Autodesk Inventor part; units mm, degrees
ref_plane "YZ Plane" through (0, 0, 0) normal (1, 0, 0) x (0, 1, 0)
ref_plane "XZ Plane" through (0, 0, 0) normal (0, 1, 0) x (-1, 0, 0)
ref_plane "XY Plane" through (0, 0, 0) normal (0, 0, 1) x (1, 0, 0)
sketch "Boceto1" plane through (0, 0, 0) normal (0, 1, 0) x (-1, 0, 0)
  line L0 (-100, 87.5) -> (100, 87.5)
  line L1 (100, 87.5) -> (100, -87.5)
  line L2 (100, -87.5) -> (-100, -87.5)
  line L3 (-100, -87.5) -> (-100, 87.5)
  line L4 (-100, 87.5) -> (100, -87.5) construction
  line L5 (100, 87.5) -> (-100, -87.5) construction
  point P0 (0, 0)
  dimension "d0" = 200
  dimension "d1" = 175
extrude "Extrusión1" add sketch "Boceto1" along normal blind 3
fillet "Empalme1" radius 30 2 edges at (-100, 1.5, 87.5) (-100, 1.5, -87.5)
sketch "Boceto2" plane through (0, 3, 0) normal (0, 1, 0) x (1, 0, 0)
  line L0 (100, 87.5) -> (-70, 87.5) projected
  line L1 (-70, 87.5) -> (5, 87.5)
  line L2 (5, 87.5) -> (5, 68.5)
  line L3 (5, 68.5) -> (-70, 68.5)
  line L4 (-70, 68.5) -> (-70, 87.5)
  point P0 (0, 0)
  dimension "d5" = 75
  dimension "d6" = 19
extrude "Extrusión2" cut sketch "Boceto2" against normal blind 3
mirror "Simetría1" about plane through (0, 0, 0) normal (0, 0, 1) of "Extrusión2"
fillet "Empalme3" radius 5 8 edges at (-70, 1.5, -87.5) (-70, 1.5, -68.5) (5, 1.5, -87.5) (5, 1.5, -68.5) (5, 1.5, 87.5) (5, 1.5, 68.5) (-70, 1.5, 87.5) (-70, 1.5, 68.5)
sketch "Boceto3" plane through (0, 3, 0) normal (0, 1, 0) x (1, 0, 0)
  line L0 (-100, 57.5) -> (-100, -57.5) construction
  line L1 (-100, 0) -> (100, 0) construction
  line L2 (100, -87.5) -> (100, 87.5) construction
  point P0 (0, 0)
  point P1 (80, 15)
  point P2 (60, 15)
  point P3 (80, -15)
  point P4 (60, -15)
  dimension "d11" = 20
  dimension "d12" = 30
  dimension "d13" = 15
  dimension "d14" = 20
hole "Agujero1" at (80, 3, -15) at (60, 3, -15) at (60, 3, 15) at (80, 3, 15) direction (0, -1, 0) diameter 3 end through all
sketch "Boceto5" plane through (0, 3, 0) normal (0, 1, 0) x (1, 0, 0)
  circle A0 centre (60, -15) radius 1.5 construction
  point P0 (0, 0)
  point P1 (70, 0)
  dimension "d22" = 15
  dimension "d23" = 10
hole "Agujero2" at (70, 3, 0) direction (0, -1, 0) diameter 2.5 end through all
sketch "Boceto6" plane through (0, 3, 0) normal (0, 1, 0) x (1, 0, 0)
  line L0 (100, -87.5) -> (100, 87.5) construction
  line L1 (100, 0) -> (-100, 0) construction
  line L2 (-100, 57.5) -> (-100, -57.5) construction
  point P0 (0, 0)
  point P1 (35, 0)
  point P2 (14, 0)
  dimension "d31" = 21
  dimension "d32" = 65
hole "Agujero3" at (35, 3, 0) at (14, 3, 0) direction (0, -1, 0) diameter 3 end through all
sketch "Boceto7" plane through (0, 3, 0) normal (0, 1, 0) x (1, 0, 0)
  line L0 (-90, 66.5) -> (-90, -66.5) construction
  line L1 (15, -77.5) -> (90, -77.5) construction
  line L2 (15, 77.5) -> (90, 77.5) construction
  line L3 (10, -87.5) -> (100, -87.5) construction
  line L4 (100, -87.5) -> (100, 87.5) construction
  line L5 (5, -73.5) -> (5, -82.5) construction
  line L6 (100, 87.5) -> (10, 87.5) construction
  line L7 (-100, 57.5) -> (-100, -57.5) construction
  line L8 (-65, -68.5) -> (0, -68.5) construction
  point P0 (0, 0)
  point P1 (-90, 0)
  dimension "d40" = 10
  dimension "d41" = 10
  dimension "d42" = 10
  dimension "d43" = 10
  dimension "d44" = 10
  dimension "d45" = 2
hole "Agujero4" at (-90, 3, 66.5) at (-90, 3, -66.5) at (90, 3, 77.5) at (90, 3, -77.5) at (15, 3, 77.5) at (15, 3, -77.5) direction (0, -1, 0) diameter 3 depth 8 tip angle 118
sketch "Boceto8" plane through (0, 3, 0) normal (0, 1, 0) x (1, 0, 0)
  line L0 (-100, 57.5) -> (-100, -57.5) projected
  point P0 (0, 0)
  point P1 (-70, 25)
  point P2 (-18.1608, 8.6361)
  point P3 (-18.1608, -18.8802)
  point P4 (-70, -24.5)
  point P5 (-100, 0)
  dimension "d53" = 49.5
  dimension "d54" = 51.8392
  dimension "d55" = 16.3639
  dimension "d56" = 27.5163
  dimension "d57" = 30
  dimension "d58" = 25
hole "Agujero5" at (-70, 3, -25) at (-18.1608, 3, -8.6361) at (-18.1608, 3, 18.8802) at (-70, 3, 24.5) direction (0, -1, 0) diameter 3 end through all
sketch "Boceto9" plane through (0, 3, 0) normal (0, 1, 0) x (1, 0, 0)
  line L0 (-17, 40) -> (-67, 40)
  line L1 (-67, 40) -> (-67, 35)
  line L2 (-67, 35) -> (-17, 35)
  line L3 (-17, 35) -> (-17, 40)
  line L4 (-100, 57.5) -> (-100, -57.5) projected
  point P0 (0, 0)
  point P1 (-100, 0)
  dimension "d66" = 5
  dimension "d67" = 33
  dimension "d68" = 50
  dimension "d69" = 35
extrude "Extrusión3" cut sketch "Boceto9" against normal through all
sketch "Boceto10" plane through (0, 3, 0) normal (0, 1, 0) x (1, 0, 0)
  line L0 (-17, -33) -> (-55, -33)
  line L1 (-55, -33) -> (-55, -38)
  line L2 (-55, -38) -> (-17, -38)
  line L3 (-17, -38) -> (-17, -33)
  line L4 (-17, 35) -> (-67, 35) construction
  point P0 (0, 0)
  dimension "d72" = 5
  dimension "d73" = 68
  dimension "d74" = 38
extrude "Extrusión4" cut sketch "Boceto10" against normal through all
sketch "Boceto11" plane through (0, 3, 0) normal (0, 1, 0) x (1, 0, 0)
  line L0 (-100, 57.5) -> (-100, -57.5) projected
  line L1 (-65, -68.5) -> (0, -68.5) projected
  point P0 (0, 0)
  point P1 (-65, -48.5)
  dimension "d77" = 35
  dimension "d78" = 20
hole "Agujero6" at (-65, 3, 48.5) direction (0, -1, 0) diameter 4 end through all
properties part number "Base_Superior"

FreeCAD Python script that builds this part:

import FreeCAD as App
import Part
import Sketcher


def edges_at(feature, points):
    """Names of the edges that pass closest to the given points."""
    edges = feature.Shape.Edges
    near = lambda p: min(range(len(edges)), key=lambda i: edges[i].distToShape(Part.Vertex(*p))[0])
    return sorted({f"Edge{near(p) + 1}" for p in points})


def add_polygon(sketch, points):
    """Adds a closed chain of lines whose ends are joined by coincident constraints."""
    first, n = sketch.GeometryCount, len(points)
    for a, b in zip(points, points[1:] + points[:1]):
        sketch.addGeometry(Part.LineSegment(App.Vector(*a, 0), App.Vector(*b, 0)), False)
    for i in range(n):
        sketch.addConstraint(Sketcher.Constraint("Coincident", first + i, 2, first + (i + 1) % n, 1))

doc = App.newDocument("Part")
body = doc.addObject("PartDesign::Body", "Body")

sketch1 = body.newObject("Sketcher::SketchObject", "Sketch")
sketch1.AttachmentSupport = (doc.getObject("XZ_Plane"), [""])
sketch1.MapMode = "FlatFace"
add_polygon(sketch1, [(-100, 88), (100, 88), (100, -88), (-100, -88)])
sketch1.addConstraint([
    Sketcher.Constraint("Horizontal", 0),
    Sketcher.Constraint("Vertical", 1),
    Sketcher.Constraint("Horizontal", 2),
    Sketcher.Constraint("Vertical", 3),
    Sketcher.Constraint("Symmetric", 0, 2, 2, 2, -1, 1),
    Sketcher.Constraint("DistanceX", 0, 1, 0, 2, 200.0),
    Sketcher.Constraint("DistanceY", 1, 2, 1, 1, 175.0),
])
pad1 = body.newObject("PartDesign::Pad", "Pad")
pad1.Profile = sketch1
pad1.Length = 3
pad1.Reversed = True
doc.recompute()

fillet = body.newObject("PartDesign::Fillet", "Fillet")
fillet.Base = (pad1, edges_at(pad1, [(-100, 1.5, 87.5), (-100, 1.5, -87.5)]))
fillet.Radius = 30

sketch2 = body.newObject("Sketcher::SketchObject", "Sketch001")
sketch2.AttachmentSupport = (doc.getObject("XZ_Plane"), [""])
sketch2.MapMode = "FlatFace"
sketch2.AttachmentOffset = App.Placement(App.Vector(0, 0, -3), App.Rotation())
add_polygon(sketch2, [(5, -68), (5, -88), (-70, -88), (-70, -68)])
sketch2.addConstraint([
    Sketcher.Constraint("Vertical", 0),
    Sketcher.Constraint("Horizontal", 1),
    Sketcher.Constraint("Vertical", 2),
    Sketcher.Constraint("Horizontal", 3),
    Sketcher.Constraint("DistanceX", 1, 2, 1, 1, 75.0),
    Sketcher.Constraint("DistanceY", 0, 2, 0, 1, 19.0),
    Sketcher.Constraint("DistanceX", -1, 1, 0, 2, 5.0),
    Sketcher.Constraint("DistanceY", 0, 2, -1, 1, 87.5),
])
pocket1 = body.newObject("PartDesign::Pocket", "Pocket")
pocket1.Profile = sketch2
pocket1.Length = 3
pocket1.Reversed = True
doc.recompute()

mirrored = body.newObject("PartDesign::Mirrored", "Mirrored")
mirrored.Originals = [pocket1]
mirrored.MirrorPlane = (doc.getObject("XY_Plane"), [""])
body.Tip = mirrored
doc.recompute()

fillet2 = body.newObject("PartDesign::Fillet", "Fillet001")
fillet2.Base = (mirrored, edges_at(mirrored, [
    (-70, 1.5, -87.5),
    (-70, 1.5, -68.5),
    (5, 1.5, -87.5),
    (5, 1.5, -68.5),
    (5, 1.5, 87.5),
    (5, 1.5, 68.5),
    (-70, 1.5, 87.5),
    (-70, 1.5, 68.5),
]))
fillet2.Radius = 5

sketch3 = body.newObject("Sketcher::SketchObject", "Sketch002")
sketch3.AttachmentSupport = (doc.getObject("XZ_Plane"), [""])
sketch3.MapMode = "FlatFace"
sketch3.AttachmentOffset = App.Placement(App.Vector(0, 0, -3), App.Rotation())
sketch3.addGeometry([
    Part.Circle(App.Vector(80, -15, 0), App.Vector(0, 0, 1), 1.5),
    Part.Circle(App.Vector(60, -15, 0), App.Vector(0, 0, 1), 1.5),
    Part.Circle(App.Vector(60, 15, 0), App.Vector(0, 0, 1), 1.5),
    Part.Circle(App.Vector(80, 15, 0), App.Vector(0, 0, 1), 1.5),
], False)
sketch3.addConstraint([
    Sketcher.Constraint("Equal", 0, 1),
    Sketcher.Constraint("Equal", 1, 2),
    Sketcher.Constraint("Equal", 2, 3),
    Sketcher.Constraint("Symmetric", 1, 3, 2, 3, -1),
    Sketcher.Constraint("Symmetric", 0, 3, 3, 3, -1),
    Sketcher.Constraint("Horizontal", 0, 3, 1, 3),
    Sketcher.Constraint("Diameter", 0, 3.0),
    Sketcher.Constraint("DistanceX", -1, 1, 0, 3, 80.0),
    Sketcher.Constraint("DistanceY", 0, 3, -1, 1, 15.0),
    Sketcher.Constraint("DistanceX", -1, 1, 1, 3, 60.0),
])
doc.recompute()
hole = body.newObject("PartDesign::Hole", "Hole")
hole.Profile = sketch3
hole.ThreadType = "None"
hole.Diameter = 3
hole.DepthType = "ThroughAll"
hole.Reversed = True

sketch4 = body.newObject("Sketcher::SketchObject", "Sketch003")
sketch4.AttachmentSupport = (doc.getObject("XZ_Plane"), [""])
sketch4.MapMode = "FlatFace"
sketch4.AttachmentOffset = App.Placement(App.Vector(0, 0, -3), App.Rotation())
sketch4.addGeometry(Part.Circle(App.Vector(70, 0, 0), App.Vector(0, 0, 1), 1.2), False)
sketch4.addConstraint([
    Sketcher.Constraint("PointOnObject", 0, 3, -1),
    Sketcher.Constraint("Diameter", 0, 2.5),
    Sketcher.Constraint("DistanceX", -1, 1, 0, 3, 70.0),
])
doc.recompute()
hole2 = body.newObject("PartDesign::Hole", "Hole001")
hole2.Profile = sketch4
hole2.ThreadType = "None"
hole2.Diameter = 2.5
hole2.DepthType = "ThroughAll"
hole2.Reversed = True

sketch5 = body.newObject("Sketcher::SketchObject", "Sketch004")
sketch5.AttachmentSupport = (doc.getObject("XZ_Plane"), [""])
sketch5.MapMode = "FlatFace"
sketch5.AttachmentOffset = App.Placement(App.Vector(0, 0, -3), App.Rotation())
sketch5.addGeometry([
    Part.Circle(App.Vector(35, 0, 0), App.Vector(0, 0, 1), 1.5),
    Part.Circle(App.Vector(14, 0, 0), App.Vector(0, 0, 1), 1.5),
], False)
sketch5.addConstraint([
    Sketcher.Constraint("Equal", 0, 1),
    Sketcher.Constraint("PointOnObject", 0, 3, -1),
    Sketcher.Constraint("PointOnObject", 1, 3, -1),
    Sketcher.Constraint("Diameter", 0, 3.0),
    Sketcher.Constraint("DistanceX", -1, 1, 0, 3, 35.0),
    Sketcher.Constraint("DistanceX", -1, 1, 1, 3, 14.0),
])
doc.recompute()
hole3 = body.newObject("PartDesign::Hole", "Hole002")
hole3.Profile = sketch5
hole3.ThreadType = "None"
hole3.Diameter = 3
hole3.DepthType = "ThroughAll"
hole3.Reversed = True

sketch6 = body.newObject("Sketcher::SketchObject", "Sketch005")
sketch6.AttachmentSupport = (doc.getObject("XZ_Plane"), [""])
sketch6.MapMode = "FlatFace"
sketch6.AttachmentOffset = App.Placement(App.Vector(0, 0, -3), App.Rotation())
sketch6.addGeometry([
    Part.Circle(App.Vector(-90, 66.5, 0), App.Vector(0, 0, 1), 1.5),
    Part.Circle(App.Vector(-90, -66.5, 0), App.Vector(0, 0, 1), 1.5),
    Part.Circle(App.Vector(90, 77.5, 0), App.Vector(0, 0, 1), 1.5),
    Part.Circle(App.Vector(90, -77.5, 0), App.Vector(0, 0, 1), 1.5),
    Part.Circle(App.Vector(15, 77.5, 0), App.Vector(0, 0, 1), 1.5),
    Part.Circle(App.Vector(15, -77.5, 0), App.Vector(0, 0, 1), 1.5),
], False)
sketch6.addConstraint([
    Sketcher.Constraint("Equal", 0, 1),
    Sketcher.Constraint("Equal", 1, 2),
    Sketcher.Constraint("Equal", 2, 3),
    Sketcher.Constraint("Equal", 3, 4),
    Sketcher.Constraint("Equal", 4, 5),
    Sketcher.Constraint("Symmetric", 0, 3, 1, 3, -1),
    Sketcher.Constraint("Symmetric", 2, 3, 3, 3, -1),
    Sketcher.Constraint("Symmetric", 4, 3, 5, 3, -1),
    Sketcher.Constraint("Horizontal", 2, 3, 4, 3),
    Sketcher.Constraint("Diameter", 0, 3.0),
    Sketcher.Constraint("DistanceX", 0, 3, -1, 1, 90.0),
    Sketcher.Constraint("DistanceX", -1, 1, 2, 3, 90.0),
    Sketcher.Constraint("DistanceX", -1, 1, 4, 3, 15.0),
    Sketcher.Constraint("DistanceY", 1, 3, 0, 3, 133.0),
    Sketcher.Constraint("DistanceY", 0, 3, 2, 3, 11.0),
])
doc.recompute()
hole4 = body.newObject("PartDesign::Hole", "Hole003")
hole4.Profile = sketch6
hole4.ThreadType = "None"
hole4.Diameter = 3
hole4.DepthType = "Dimension"
hole4.Depth = 8
hole4.DrillPoint = "Angled"
hole4.DrillPointAngle = 118
hole4.Reversed = True

sketch7 = body.newObject("Sketcher::SketchObject", "Sketch006")
sketch7.AttachmentSupport = (doc.getObject("XZ_Plane"), [""])
sketch7.MapMode = "FlatFace"
sketch7.AttachmentOffset = App.Placement(App.Vector(0, 0, -3), App.Rotation())
sketch7.addGeometry([
    Part.Circle(App.Vector(-70, -25, 0), App.Vector(0, 0, 1), 1.5),
    Part.Circle(App.Vector(-18.2, -8.6, 0), App.Vector(0, 0, 1), 1.5),
    Part.Circle(App.Vector(-18.2, 18.9, 0), App.Vector(0, 0, 1), 1.5),
    Part.Circle(App.Vector(-70, 24.5, 0), App.Vector(0, 0, 1), 1.5),
], False)
sketch7.addConstraint([
    Sketcher.Constraint("Equal", 0, 1),
    Sketcher.Constraint("Equal", 1, 2),
    Sketcher.Constraint("Equal", 2, 3),
    Sketcher.Constraint("Vertical", 1, 3, 2, 3),
    Sketcher.Constraint("Vertical", 0, 3, 3, 3),
    Sketcher.Constraint("Diameter", 0, 3.0),
    Sketcher.Constraint("DistanceX", 0, 3, -1, 1, 70.0),
    Sketcher.Constraint("DistanceY", 0, 3, -1, 1, 25.0),
    Sketcher.Constraint("DistanceY", -1, 1, 3, 3, 24.5),
    Sketcher.Constraint("DistanceY", 1, 3, -1, 1, 8.636),
    Sketcher.Constraint("DistanceX", 1, 3, -1, 1, 18.1608),
    Sketcher.Constraint("DistanceY", -1, 1, 2, 3, 18.8802),
])
doc.recompute()
hole5 = body.newObject("PartDesign::Hole", "Hole004")
hole5.Profile = sketch7
hole5.ThreadType = "None"
hole5.Diameter = 3
hole5.DepthType = "ThroughAll"
hole5.Reversed = True

sketch8 = body.newObject("Sketcher::SketchObject", "Sketch007")
sketch8.AttachmentSupport = (doc.getObject("XZ_Plane"), [""])
sketch8.MapMode = "FlatFace"
sketch8.AttachmentOffset = App.Placement(App.Vector(0, 0, -3), App.Rotation())
add_polygon(sketch8, [(-17, -35), (-17, -40), (-67, -40), (-67, -35)])
sketch8.addConstraint([
    Sketcher.Constraint("Vertical", 0),
    Sketcher.Constraint("Horizontal", 1),
    Sketcher.Constraint("Vertical", 2),
    Sketcher.Constraint("Horizontal", 3),
    Sketcher.Constraint("DistanceX", 1, 2, 1, 1, 50.0),
    Sketcher.Constraint("DistanceY", 0, 2, 0, 1, 5.0),
    Sketcher.Constraint("DistanceY", 2, 2, -1, 1, 35.0),
    Sketcher.Constraint("DistanceX", 0, 2, -1, 1, 17.0),
])
pocket2 = body.newObject("PartDesign::Pocket", "Pocket001")
pocket2.Profile = sketch8
pocket2.Type = "ThroughAll"
pocket2.Reversed = True

sketch9 = body.newObject("Sketcher::SketchObject", "Sketch008")
sketch9.AttachmentSupport = (doc.getObject("XZ_Plane"), [""])
sketch9.MapMode = "FlatFace"
sketch9.AttachmentOffset = App.Placement(App.Vector(0, 0, -3), App.Rotation())
add_polygon(sketch9, [(-17, 38), (-17, 33), (-55, 33), (-55, 38)])
sketch9.addConstraint([
    Sketcher.Constraint("Vertical", 0),
    Sketcher.Constraint("Horizontal", 1),
    Sketcher.Constraint("Vertical", 2),
    Sketcher.Constraint("Horizontal", 3),
    Sketcher.Constraint("DistanceX", 1, 2, 1, 1, 38.0),
    Sketcher.Constraint("DistanceY", 0, 2, 0, 1, 5.0),
    Sketcher.Constraint("DistanceY", -1, 1, 2, 2, 38.0),
    Sketcher.Constraint("DistanceX", 0, 2, -1, 1, 17.0),
])
pocket3 = body.newObject("PartDesign::Pocket", "Pocket002")
pocket3.Profile = sketch9
pocket3.Type = "ThroughAll"
pocket3.Reversed = True

sketch10 = body.newObject("Sketcher::SketchObject", "Sketch009")
sketch10.AttachmentSupport = (doc.getObject("XZ_Plane"), [""])
sketch10.MapMode = "FlatFace"
sketch10.AttachmentOffset = App.Placement(App.Vector(0, 0, -3), App.Rotation())
sketch10.addGeometry(Part.Circle(App.Vector(-65, 48.5, 0), App.Vector(0, 0, 1), 2), False)
sketch10.addConstraint([
    Sketcher.Constraint("Diameter", 0, 4.0),
    Sketcher.Constraint("DistanceX", 0, 3, -1, 1, 65.0),
    Sketcher.Constraint("DistanceY", -1, 1, 0, 3, 48.5),
])
doc.recompute()
hole6 = body.newObject("PartDesign::Hole", "Hole005")
hole6.Profile = sketch10
hole6.ThreadType = "None"
hole6.Diameter = 4
hole6.DepthType = "ThroughAll"
hole6.Reversed = True

doc.recompute()
